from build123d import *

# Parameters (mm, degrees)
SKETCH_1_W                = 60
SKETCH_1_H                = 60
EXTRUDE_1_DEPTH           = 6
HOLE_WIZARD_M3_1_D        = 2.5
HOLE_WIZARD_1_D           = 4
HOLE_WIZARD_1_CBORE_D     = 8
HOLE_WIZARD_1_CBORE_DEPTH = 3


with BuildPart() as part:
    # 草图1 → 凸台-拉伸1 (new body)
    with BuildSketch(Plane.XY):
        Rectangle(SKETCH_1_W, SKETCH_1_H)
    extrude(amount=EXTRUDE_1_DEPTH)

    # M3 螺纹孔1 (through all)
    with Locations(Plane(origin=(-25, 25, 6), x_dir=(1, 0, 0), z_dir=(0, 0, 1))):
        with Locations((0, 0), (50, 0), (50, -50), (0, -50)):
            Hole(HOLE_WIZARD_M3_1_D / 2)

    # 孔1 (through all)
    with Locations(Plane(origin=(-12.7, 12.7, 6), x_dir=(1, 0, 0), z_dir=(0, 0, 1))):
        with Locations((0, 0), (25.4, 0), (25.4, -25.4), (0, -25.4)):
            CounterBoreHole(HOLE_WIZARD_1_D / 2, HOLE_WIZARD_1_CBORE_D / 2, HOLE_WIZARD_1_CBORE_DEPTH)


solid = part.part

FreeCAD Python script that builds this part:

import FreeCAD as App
import Part
import Sketcher
from FreeCAD import Vector
Q = App.Units.Quantity

doc = App.newDocument("Part")
body = doc.addObject("PartDesign::Body", "Body")

sketch1 = body.newObject("Sketcher::SketchObject", "Sketch")
sketch1.AttachmentSupport = (doc.getObject("XY_Plane"), [""])
sketch1.MapMode = "FlatFace"
sketch1.addGeometry([
    Part.LineSegment(Vector(-30, 30, 0), Vector(-30, -30, 0)),
    Part.LineSegment(Vector(-30, -30, 0), Vector(30, -30, 0)),
    Part.LineSegment(Vector(30, -30, 0), Vector(30, 30, 0)),
    Part.LineSegment(Vector(30, 30, 0), Vector(-30, 30, 0)),
], False)
sketch1.addConstraint([
    Sketcher.Constraint("Coincident", 0, 2, 1, 1),
    Sketcher.Constraint("Coincident", 1, 2, 2, 1),
    Sketcher.Constraint("Coincident", 2, 2, 3, 1),
    Sketcher.Constraint("Coincident", 3, 2, 0, 1),
    Sketcher.Constraint("Vertical", 0),
    Sketcher.Constraint("Horizontal", 1),
    Sketcher.Constraint("Vertical", 2),
    Sketcher.Constraint("Horizontal", 3),
    Sketcher.Constraint("Symmetric", 0, 2, 2, 2, -1, 1),
    Sketcher.Constraint("Equal", 3, 0),
    Sketcher.Constraint("DistanceX", 1, 1, 1, 2, Q("60 mm")),
])
pad1 = body.newObject("PartDesign::Pad", "Pad")
pad1.Profile = sketch1
pad1.Length = 6

sketch2 = body.newObject("Sketcher::SketchObject", "Sketch001")
sketch2.AttachmentSupport = (doc.getObject("XY_Plane"), [""])
sketch2.MapMode = "FlatFace"
sketch2.AttachmentOffset = App.Placement(Vector(0, 0, 6), App.Rotation())
sketch2.addGeometry([
    Part.Circle(Vector(-25, 25, 0), Vector(0, 0, 1), 1.2),
    Part.Circle(Vector(25, 25, 0), Vector(0, 0, 1), 1.2),
    Part.Circle(Vector(25, -25, 0), Vector(0, 0, 1), 1.2),
    Part.Circle(Vector(-25, -25, 0), Vector(0, 0, 1), 1.2),
], False)
sketch2.addConstraint([
    Sketcher.Constraint("Equal", 0, 1),
    Sketcher.Constraint("Equal", 1, 2),
    Sketcher.Constraint("Equal", 2, 3),
    Sketcher.Constraint("Symmetric", 0, 3, 2, 3, -1, 1),
    Sketcher.Constraint("Symmetric", 1, 3, 3, 3, -1, 1),
    Sketcher.Constraint("Symmetric", 0, 3, 1, 3, -2),
    Sketcher.Constraint("Diameter", 0, Q("2.5 mm")),
    Sketcher.Constraint("DistanceX", 0, 3, -1, 1, Q("25 mm")),
    Sketcher.Constraint("DistanceY", -1, 1, 0, 3, Q("25 mm")),
])
doc.recompute()
hole = body.newObject("PartDesign::Hole", "Hole")
hole.Profile = sketch2
hole.ThreadType = "None"
hole.Diameter = 2.5
hole.DepthType = "ThroughAll"

sketch3 = body.newObject("Sketcher::SketchObject", "Sketch002")
sketch3.AttachmentSupport = (doc.getObject("XY_Plane"), [""])
sketch3.MapMode = "FlatFace"
sketch3.AttachmentOffset = App.Placement(Vector(0, 0, 6), App.Rotation())
sketch3.addGeometry([
    Part.Circle(Vector(-12.7, 12.7, 0), Vector(0, 0, 1), 2),
    Part.Circle(Vector(12.7, 12.7, 0), Vector(0, 0, 1), 2),
    Part.Circle(Vector(12.7, -12.7, 0), Vector(0, 0, 1), 2),
    Part.Circle(Vector(-12.7, -12.7, 0), Vector(0, 0, 1), 2),
], False)
sketch3.addConstraint([
    Sketcher.Constraint("Equal", 0, 1),
    Sketcher.Constraint("Equal", 1, 2),
    Sketcher.Constraint("Equal", 2, 3),
    Sketcher.Constraint("Symmetric", 0, 3, 2, 3, -1, 1),
    Sketcher.Constraint("Symmetric", 1, 3, 3, 3, -1, 1),
    Sketcher.Constraint("Symmetric", 0, 3, 1, 3, -2),
    Sketcher.Constraint("Diameter", 0, Q("4 mm")),
    Sketcher.Constraint("DistanceX", 0, 3, -1, 1, Q("12.7 mm")),
    Sketcher.Constraint("DistanceY", -1, 1, 0, 3, Q("12.7 mm")),
])
doc.recompute()
hole2 = body.newObject("PartDesign::Hole", "Hole001")
hole2.Profile = sketch3
hole2.ThreadType = "None"
hole2.Diameter = 4
hole2.DepthType = "ThroughAll"
hole2.HoleCutType = "Counterbore"
hole2.HoleCutDiameter = 8
hole2.HoleCutDepth = 3

doc.recompute()
